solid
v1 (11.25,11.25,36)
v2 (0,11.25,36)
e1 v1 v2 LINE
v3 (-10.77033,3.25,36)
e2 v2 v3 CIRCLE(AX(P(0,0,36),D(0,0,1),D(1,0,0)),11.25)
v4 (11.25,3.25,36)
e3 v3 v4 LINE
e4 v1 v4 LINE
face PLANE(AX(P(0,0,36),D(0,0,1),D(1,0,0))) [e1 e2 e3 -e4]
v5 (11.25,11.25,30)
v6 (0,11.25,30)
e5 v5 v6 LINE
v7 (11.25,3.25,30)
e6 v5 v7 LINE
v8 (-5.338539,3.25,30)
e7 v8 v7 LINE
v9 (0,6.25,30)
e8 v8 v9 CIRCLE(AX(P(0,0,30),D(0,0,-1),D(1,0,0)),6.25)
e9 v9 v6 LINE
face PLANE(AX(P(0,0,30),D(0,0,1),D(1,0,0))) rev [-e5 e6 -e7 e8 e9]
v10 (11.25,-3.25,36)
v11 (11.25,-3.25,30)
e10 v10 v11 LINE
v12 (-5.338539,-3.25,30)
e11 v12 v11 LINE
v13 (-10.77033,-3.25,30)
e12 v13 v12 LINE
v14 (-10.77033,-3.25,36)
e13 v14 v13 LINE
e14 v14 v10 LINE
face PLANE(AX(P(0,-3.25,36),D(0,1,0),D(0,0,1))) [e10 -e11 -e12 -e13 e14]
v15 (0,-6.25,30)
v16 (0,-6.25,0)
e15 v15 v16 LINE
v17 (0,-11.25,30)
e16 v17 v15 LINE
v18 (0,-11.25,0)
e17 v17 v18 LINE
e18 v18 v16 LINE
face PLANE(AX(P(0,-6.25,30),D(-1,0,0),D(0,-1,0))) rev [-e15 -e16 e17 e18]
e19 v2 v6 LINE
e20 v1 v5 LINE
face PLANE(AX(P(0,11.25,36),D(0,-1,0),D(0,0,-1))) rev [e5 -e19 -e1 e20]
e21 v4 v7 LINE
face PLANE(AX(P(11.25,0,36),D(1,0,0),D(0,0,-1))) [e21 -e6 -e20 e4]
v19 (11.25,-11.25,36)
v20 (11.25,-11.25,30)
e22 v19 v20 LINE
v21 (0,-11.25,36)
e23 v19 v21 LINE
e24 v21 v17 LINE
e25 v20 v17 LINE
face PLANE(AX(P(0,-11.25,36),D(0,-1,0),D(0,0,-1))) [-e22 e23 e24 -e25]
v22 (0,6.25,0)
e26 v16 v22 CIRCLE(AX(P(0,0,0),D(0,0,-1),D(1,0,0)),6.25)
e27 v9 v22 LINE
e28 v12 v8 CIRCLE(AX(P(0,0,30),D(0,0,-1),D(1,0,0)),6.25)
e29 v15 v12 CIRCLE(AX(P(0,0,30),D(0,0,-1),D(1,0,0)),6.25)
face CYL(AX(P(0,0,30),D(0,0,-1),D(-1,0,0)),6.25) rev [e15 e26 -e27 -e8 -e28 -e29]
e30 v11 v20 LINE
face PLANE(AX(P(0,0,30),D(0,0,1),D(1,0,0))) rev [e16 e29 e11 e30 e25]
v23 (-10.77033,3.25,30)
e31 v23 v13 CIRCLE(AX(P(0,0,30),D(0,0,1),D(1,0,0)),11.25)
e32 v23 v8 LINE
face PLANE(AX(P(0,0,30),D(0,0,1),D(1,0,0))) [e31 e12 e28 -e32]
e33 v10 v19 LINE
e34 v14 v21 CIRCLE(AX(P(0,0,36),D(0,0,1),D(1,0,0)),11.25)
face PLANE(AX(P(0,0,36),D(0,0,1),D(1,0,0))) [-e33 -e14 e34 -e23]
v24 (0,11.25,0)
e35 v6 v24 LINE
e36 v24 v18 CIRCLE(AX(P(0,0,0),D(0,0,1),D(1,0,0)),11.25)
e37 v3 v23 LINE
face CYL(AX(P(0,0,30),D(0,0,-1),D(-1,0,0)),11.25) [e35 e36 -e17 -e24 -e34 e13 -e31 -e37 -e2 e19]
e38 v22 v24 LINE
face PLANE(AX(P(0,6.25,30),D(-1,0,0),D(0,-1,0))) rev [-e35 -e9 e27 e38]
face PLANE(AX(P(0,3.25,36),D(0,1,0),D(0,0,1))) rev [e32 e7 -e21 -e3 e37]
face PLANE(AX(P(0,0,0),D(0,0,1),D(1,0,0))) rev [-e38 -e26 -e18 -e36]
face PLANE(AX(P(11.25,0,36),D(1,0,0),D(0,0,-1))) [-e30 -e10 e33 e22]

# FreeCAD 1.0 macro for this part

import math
import FreeCAD as App
import Part
import Sketcher

V = App.Vector

doc = App.newDocument("Part")
body = doc.addObject("PartDesign::Body", "Body")

sketch1 = body.newObject("Sketcher::SketchObject", "Sketch")
sketch1.AttachmentSupport = (doc.getObject("XY_Plane"), [""])
sketch1.MapMode = "FlatFace"
sketch1.addGeometry(Part.LineSegment(V(0, 6, 0), V(0, 11, 0)), False)
sketch1.addGeometry(Part.ArcOfCircle(Part.Circle(V(0, 0, 0), V(0, 0, 1), 11), math.radians(90), math.radians(270)), False)
sketch1.addGeometry(Part.LineSegment(V(0, -11, 0), V(0, -6, 0)), False)
sketch1.addGeometry(Part.ArcOfCircle(Part.Circle(V(0, 0, 0), V(0, 0, 1), 6), math.radians(90), math.radians(270)), False)
sketch1.addConstraint(Sketcher.Constraint("Coincident", 0, 2, 1, 1))
sketch1.addConstraint(Sketcher.Constraint("Coincident", 1, 2, 2, 1))
sketch1.addConstraint(Sketcher.Constraint("Coincident", 2, 2, 3, 2))
sketch1.addConstraint(Sketcher.Constraint("Coincident", 3, 1, 0, 1))
sketch1.addConstraint(Sketcher.Constraint("Vertical", 0))
sketch1.addConstraint(Sketcher.Constraint("Vertical", 2))
sketch1.addConstraint(Sketcher.Constraint("Coincident", 1, 3, -1, 1))
sketch1.addConstraint(Sketcher.Constraint("Coincident", 3, 3, -1, 1))
sketch1.addConstraint(Sketcher.Constraint("PointOnObject", 0, 2, -2))
sketch1.addConstraint(Sketcher.Constraint("PointOnObject", 1, 2, -2))
sketch1.addConstraint(Sketcher.Constraint("DistanceY", 0, 1, 0, 2, 5.0))
sketch1.addConstraint(Sketcher.Constraint("Radius", 1, 11.25))
pad1 = body.newObject("PartDesign::Pad", "Pad")
pad1.Profile = sketch1
pad1.Length = 30

sketch2 = body.newObject("Sketcher::SketchObject", "Sketch001")
sketch2.AttachmentSupport = (doc.getObject("XY_Plane"), [""])
sketch2.MapMode = "FlatFace"
sketch2.AttachmentOffset = App.Placement(V(0, 0, 30), App.Rotation())
sketch2.addGeometry(Part.ArcOfCircle(Part.Circle(V(0, 0, 0), V(0, 0, 1), 11), math.radians(90), math.radians(163)), False)
sketch2.addGeometry(Part.LineSegment(V(-11, 3, 0), V(11, 3, 0)), False)
sketch2.addGeometry(Part.LineSegment(V(11, 3, 0), V(11, 11, 0)), False)
sketch2.addGeometry(Part.LineSegment(V(11, 11, 0), V(0, 11, 0)), False)
sketch2.addGeometry(Part.ArcOfCircle(Part.Circle(V(0, 0, 0), V(0, 0, 1), 11), math.radians(-163), math.radians(-90)), False)
sketch2.addGeometry(Part.LineSegment(V(0, -11, 0), V(11, -11, 0)), False)
sketch2.addGeometry(Part.LineSegment(V(11, -11, 0), V(11, -3, 0)), False)
sketch2.addGeometry(Part.LineSegment(V(11, -3, 0), V(-11, -3, 0)), False)
sketch2.addConstraint(Sketcher.Constraint("Coincident", 0, 2, 1, 1))
sketch2.addConstraint(Sketcher.Constraint("Coincident", 1, 2, 2, 1))
sketch2.addConstraint(Sketcher.Constraint("Coincident", 2, 2, 3, 1))
sketch2.addConstraint(Sketcher.Constraint("Tangent", 3, 2, 0, 1))
sketch2.addConstraint(Sketcher.Constraint("Tangent", 4, 2, 5, 1))
sketch2.addConstraint(Sketcher.Constraint("Coincident", 5, 2, 6, 1))
sketch2.addConstraint(Sketcher.Constraint("Coincident", 6, 2, 7, 1))
sketch2.addConstraint(Sketcher.Constraint("Coincident", 7, 2, 4, 1))
sketch2.addConstraint(Sketcher.Constraint("Horizontal", 1))
sketch2.addConstraint(Sketcher.Constraint("Vertical", 2))
sketch2.addConstraint(Sketcher.Constraint("Horizontal", 3))
sketch2.addConstraint(Sketcher.Constraint("Horizontal", 5))
sketch2.addConstraint(Sketcher.Constraint("Vertical", 6))
sketch2.addConstraint(Sketcher.Constraint("Horizontal", 7))
sketch2.addConstraint(Sketcher.Constraint("Coincident", 0, 3, -1, 1))
sketch2.addConstraint(Sketcher.Constraint("Coincident", 4, 3, -1, 1))
sketch2.addConstraint(Sketcher.Constraint("Equal", 0, 4))
sketch2.addConstraint(Sketcher.Constraint("Symmetric", 1, 2, 6, 2, -1))
sketch2.addConstraint(Sketcher.Constraint("DistanceY", 2, 1, 2, 2, 8.0))
sketch2.addConstraint(Sketcher.Constraint("Radius", 0, 11.25))
sketch2.addConstraint(Sketcher.Constraint("DistanceX", 3, 2, 3, 1, 11.25))
pad2 = body.newObject("PartDesign::Pad", "Pad001")
pad2.Profile = sketch2
pad2.Length = 6

doc.recompute()
